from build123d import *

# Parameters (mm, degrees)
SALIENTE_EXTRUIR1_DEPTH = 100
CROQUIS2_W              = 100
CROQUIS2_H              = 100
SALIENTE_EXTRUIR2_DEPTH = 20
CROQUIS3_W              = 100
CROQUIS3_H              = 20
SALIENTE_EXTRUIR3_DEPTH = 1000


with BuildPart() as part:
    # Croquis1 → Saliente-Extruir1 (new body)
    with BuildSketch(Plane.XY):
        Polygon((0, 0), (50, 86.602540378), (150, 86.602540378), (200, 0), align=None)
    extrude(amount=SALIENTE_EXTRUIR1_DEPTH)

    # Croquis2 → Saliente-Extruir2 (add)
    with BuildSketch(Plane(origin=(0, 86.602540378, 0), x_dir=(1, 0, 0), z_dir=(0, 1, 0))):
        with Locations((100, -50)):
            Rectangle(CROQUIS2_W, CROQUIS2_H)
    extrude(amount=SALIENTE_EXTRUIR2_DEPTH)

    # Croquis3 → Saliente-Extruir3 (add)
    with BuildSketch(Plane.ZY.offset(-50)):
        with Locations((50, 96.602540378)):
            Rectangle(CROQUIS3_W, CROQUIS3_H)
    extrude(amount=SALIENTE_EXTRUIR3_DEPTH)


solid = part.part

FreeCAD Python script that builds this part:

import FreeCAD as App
import Part
import Sketcher
Q = App.Units.Quantity

doc = App.newDocument("Part")
body = doc.addObject("PartDesign::Body", "Body")

# Sketch on XY plane
sketch1 = body.newObject("Sketcher::SketchObject", "Sketch")
sketch1.AttachmentSupport = (doc.getObject("XY_Plane"), [""])
sketch1.MapMode = "FlatFace"
sketch1.addGeometry([
    Part.LineSegment(App.Vector(50, 86.60254, 0), App.Vector(0, 0, 0)),
    Part.LineSegment(App.Vector(0, 0, 0), App.Vector(200, 0, 0)),
    Part.LineSegment(App.Vector(200, 0, 0), App.Vector(150, 86.60254, 0)),
    Part.LineSegment(App.Vector(150, 86.60254, 0), App.Vector(50, 86.60254, 0)),
], False)
sketch1.addConstraint([
    Sketcher.Constraint("Coincident", 0, 2, 1, 1),
    Sketcher.Constraint("Coincident", 1, 2, 2, 1),
    Sketcher.Constraint("Coincident", 2, 2, 3, 1),
    Sketcher.Constraint("Coincident", 3, 2, 0, 1),
    Sketcher.Constraint("Horizontal", 1),
    Sketcher.Constraint("Horizontal", 3),
    Sketcher.Constraint("Coincident", 0, 2, -1, 1),
    Sketcher.Constraint("Equal", 0, 2),
    Sketcher.Constraint("DistanceX", 1, 1, 1, 2, 200.0),
    Sketcher.Constraint("DistanceX", 3, 2, 3, 1, 100.0),
    Sketcher.Constraint("Angle", 0, Q("-120 deg")),
])
pad1 = body.newObject("PartDesign::Pad", "Pad")
pad1.Profile = sketch1
pad1.Length = 100

# Sketch on XZ plane
sketch2 = body.newObject("Sketcher::SketchObject", "Sketch001")
sketch2.AttachmentSupport = (doc.getObject("XZ_Plane"), [""])
sketch2.MapMode = "FlatFace"
sketch2.AttachmentOffset = App.Placement(App.Vector(0, 0, -86.60254), App.Rotation())
sketch2.addGeometry([
    Part.LineSegment(App.Vector(50, 0, 0), App.Vector(50, 100, 0)),
    Part.LineSegment(App.Vector(50, 100, 0), App.Vector(150, 100, 0)),
    Part.LineSegment(App.Vector(150, 100, 0), App.Vector(150, 0, 0)),
    Part.LineSegment(App.Vector(150, 0, 0), App.Vector(50, 0, 0)),
], False)
sketch2.addConstraint([
    Sketcher.Constraint("Coincident", 0, 2, 1, 1),
    Sketcher.Constraint("Coincident", 1, 2, 2, 1),
    Sketcher.Constraint("Coincident", 2, 2, 3, 1),
    Sketcher.Constraint("Coincident", 3, 2, 0, 1),
    Sketcher.Constraint("Vertical", 0),
    Sketcher.Constraint("Horizontal", 1),
    Sketcher.Constraint("Vertical", 2),
    Sketcher.Constraint("Horizontal", 3),
    Sketcher.Constraint("PointOnObject", 2, 2, -1),
    Sketcher.Constraint("Equal", 3, 0),
    Sketcher.Constraint("DistanceX", 1, 1, 1, 2, 100.0),
    Sketcher.Constraint("DistanceX", -1, 1, 0, 2, 50.0),
])
pad2 = body.newObject("PartDesign::Pad", "Pad001")
pad2.Profile = sketch2
pad2.Length = 20
pad2.Reversed = True

# Sketch on YZ plane
sketch3 = body.newObject("Sketcher::SketchObject", "Sketch002")
sketch3.AttachmentSupport = (doc.getObject("YZ_Plane"), [""])
sketch3.MapMode = "FlatFace"
sketch3.AttachmentOffset = App.Placement(App.Vector(0, 0, 50), App.Rotation())
sketch3.addGeometry([
    Part.LineSegment(App.Vector(106.60254, 0, 0), App.Vector(86.60254, 0, 0)),
    Part.LineSegment(App.Vector(86.60254, 0, 0), App.Vector(86.60254, 100, 0)),
    Part.LineSegment(App.Vector(86.60254, 100, 0), App.Vector(106.60254, 100, 0)),
    Part.LineSegment(App.Vector(106.60254, 100, 0), App.Vector(106.60254, 0, 0)),
], False)
sketch3.addConstraint([
    Sketcher.Constraint("Coincident", 0, 2, 1, 1),
    Sketcher.Constraint("Coincident", 1, 2, 2, 1),
    Sketcher.Constraint("Coincident", 2, 2, 3, 1),
    Sketcher.Constraint("Coincident", 3, 2, 0, 1),
    Sketcher.Constraint("Horizontal", 0),
    Sketcher.Constraint("Vertical", 1),
    Sketcher.Constraint("Horizontal", 2),
    Sketcher.Constraint("Vertical", 3),
    Sketcher.Constraint("PointOnObject", 0, 2, -1),
    Sketcher.Constraint("DistanceX", 0, 2, 0, 1, 20.0),
    Sketcher.Constraint("DistanceY", 1, 1, 1, 2, 100.0),
    Sketcher.Constraint("DistanceX", -1, 1, 0, 2, 86.60254),
])
pad3 = body.newObject("PartDesign::Pad", "Pad002")
pad3.Profile = sketch3
pad3.Length = 1000
pad3.Reversed = True

doc.recompute()
